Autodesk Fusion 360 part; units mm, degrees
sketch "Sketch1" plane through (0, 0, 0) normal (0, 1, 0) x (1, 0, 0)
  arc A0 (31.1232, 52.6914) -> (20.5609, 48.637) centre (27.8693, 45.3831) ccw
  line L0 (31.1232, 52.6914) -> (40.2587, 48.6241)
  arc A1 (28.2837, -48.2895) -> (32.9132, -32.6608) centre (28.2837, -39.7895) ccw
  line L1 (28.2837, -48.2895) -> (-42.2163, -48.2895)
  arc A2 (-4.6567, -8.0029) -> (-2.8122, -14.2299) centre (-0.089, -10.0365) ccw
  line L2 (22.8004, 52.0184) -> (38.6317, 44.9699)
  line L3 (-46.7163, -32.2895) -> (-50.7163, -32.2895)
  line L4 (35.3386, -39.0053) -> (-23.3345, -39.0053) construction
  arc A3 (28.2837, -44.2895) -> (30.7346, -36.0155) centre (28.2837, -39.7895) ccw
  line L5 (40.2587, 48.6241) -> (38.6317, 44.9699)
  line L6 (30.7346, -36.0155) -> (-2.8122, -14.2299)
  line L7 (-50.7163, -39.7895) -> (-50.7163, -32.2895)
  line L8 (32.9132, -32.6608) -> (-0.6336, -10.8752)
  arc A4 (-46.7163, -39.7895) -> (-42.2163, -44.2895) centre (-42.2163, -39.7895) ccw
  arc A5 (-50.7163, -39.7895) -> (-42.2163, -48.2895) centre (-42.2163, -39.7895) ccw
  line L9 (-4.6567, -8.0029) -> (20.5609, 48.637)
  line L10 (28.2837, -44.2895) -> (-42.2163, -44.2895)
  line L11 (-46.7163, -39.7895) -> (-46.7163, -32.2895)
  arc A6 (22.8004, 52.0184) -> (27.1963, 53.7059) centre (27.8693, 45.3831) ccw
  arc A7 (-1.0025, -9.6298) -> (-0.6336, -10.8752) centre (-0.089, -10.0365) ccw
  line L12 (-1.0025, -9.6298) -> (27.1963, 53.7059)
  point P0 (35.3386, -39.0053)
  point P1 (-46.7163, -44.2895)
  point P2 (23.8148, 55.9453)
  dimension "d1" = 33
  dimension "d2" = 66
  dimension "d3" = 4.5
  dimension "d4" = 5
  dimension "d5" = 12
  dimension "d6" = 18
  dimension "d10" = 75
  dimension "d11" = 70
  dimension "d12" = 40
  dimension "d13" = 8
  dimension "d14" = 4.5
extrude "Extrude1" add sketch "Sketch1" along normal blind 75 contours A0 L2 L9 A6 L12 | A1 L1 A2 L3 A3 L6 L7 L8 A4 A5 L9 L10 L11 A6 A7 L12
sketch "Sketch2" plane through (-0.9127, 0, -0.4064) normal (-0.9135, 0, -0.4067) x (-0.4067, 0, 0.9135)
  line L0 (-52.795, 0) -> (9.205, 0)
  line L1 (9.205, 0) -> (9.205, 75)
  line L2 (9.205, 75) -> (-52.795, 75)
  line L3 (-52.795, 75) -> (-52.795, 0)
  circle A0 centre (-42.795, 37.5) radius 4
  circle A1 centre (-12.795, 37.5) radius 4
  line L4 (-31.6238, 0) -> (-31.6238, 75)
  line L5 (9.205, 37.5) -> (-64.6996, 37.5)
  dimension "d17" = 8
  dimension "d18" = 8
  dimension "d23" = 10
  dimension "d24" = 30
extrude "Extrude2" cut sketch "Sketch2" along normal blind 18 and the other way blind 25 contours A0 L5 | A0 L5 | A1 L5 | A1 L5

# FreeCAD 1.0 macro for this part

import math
import FreeCAD as App
import Part
import Sketcher
from FreeCAD import Vector
Q = App.Units.Quantity

doc = App.newDocument("Part")
body = doc.addObject("PartDesign::Body", "Body")

sketch1 = doc.addObject("Sketcher::SketchObject", "Sketch")
body.addObject(sketch1)
sketch1.AttachmentSupport = (doc.XZ_Plane, [""])
sketch1.MapMode = "FlatFace"
sketch1.addGeometry(Part.LineSegment(Vector(25.8, -50.7, 0), Vector(23.2, -51.9, 0)), False)
sketch1.addGeometry(Part.ArcOfCircle(Part.Circle(Vector(27.9, -45.4, 0), Vector(0, 0, 1), 8), math.radians(-156), math.radians(-126)), False)
sketch1.addGeometry(Part.LineSegment(Vector(20.6, -48.6, 0), Vector(-4.7, 8, 0)), False)
sketch1.addGeometry(Part.ArcOfCircle(Part.Circle(Vector(-0.1, 10, 0), Vector(0, 0, 1), 5), math.radians(123), math.radians(204)), False)
sketch1.addGeometry(Part.LineSegment(Vector(-2.8, 14.2, 0), Vector(30.7, 36, 0)), False)
sketch1.addGeometry(Part.ArcOfCircle(Part.Circle(Vector(28.3, 39.8, 0), Vector(0, 0, 1), 4.5), math.radians(-57), math.radians(90)), False)
sketch1.addGeometry(Part.LineSegment(Vector(28.3, 44.3, 0), Vector(-42.2, 44.3, 0)), False)
sketch1.addGeometry(Part.ArcOfCircle(Part.Circle(Vector(-42.2, 39.8, 0), Vector(0, 0, 1), 4.5), math.radians(90), math.radians(180)), False)
sketch1.addGeometry(Part.LineSegment(Vector(-46.7, 39.8, 0), Vector(-46.7, 32.3, 0)), False)
sketch1.addGeometry(Part.LineSegment(Vector(-46.7, 32.3, 0), Vector(-50.7, 32.3, 0)), False)
sketch1.addGeometry(Part.LineSegment(Vector(-50.7, 32.3, 0), Vector(-50.7, 39.8, 0)), False)
sketch1.addGeometry(Part.ArcOfCircle(Part.Circle(Vector(-42.2, 39.8, 0), Vector(0, 0, 1), 8.5), math.radians(90), math.radians(180)), False)
sketch1.addGeometry(Part.LineSegment(Vector(-42.2, 48.3, 0), Vector(28.3, 48.3, 0)), False)
sketch1.addGeometry(Part.ArcOfCircle(Part.Circle(Vector(28.3, 39.8, 0), Vector(0, 0, 1), 8.5), math.radians(-57), math.radians(90)), False)
sketch1.addGeometry(Part.LineSegment(Vector(32.9, 32.7, 0), Vector(-0.6, 10.9, 0)), False)
sketch1.addGeometry(Part.ArcOfCircle(Part.Circle(Vector(-0.1, 10, 0), Vector(0, 0, 1), 1), math.radians(123), math.radians(204)), False)
sketch1.addGeometry(Part.LineSegment(Vector(-1, 9.6, 0), Vector(25.8, -50.7, 0)), False)
sketch1.addConstraint(Sketcher.Constraint("Coincident", 0, 2, 1, 2))
sketch1.addConstraint(Sketcher.Constraint("Tangent", 1, 1, 2, 1))
sketch1.addConstraint(Sketcher.Constraint("Tangent", 2, 2, 3, 2))
sketch1.addConstraint(Sketcher.Constraint("Tangent", 3, 1, 4, 1))
sketch1.addConstraint(Sketcher.Constraint("Tangent", 4, 2, 5, 1))
sketch1.addConstraint(Sketcher.Constraint("Tangent", 5, 2, 6, 1))
sketch1.addConstraint(Sketcher.Constraint("Tangent", 6, 2, 7, 1))
sketch1.addConstraint(Sketcher.Constraint("Tangent", 7, 2, 8, 1))
sketch1.addConstraint(Sketcher.Constraint("Coincident", 8, 2, 9, 1))
sketch1.addConstraint(Sketcher.Constraint("Coincident", 9, 2, 10, 1))
sketch1.addConstraint(Sketcher.Constraint("Tangent", 10, 2, 11, 2))
sketch1.addConstraint(Sketcher.Constraint("Tangent", 11, 1, 12, 1))
sketch1.addConstraint(Sketcher.Constraint("Tangent", 12, 2, 13, 2))
sketch1.addConstraint(Sketcher.Constraint("Tangent", 13, 1, 14, 1))
sketch1.addConstraint(Sketcher.Constraint("Tangent", 14, 2, 15, 1))
sketch1.addConstraint(Sketcher.Constraint("Tangent", 15, 2, 16, 1))
sketch1.addConstraint(Sketcher.Constraint("Coincident", 16, 2, 0, 1))
sketch1.addConstraint(Sketcher.Constraint("Horizontal", 6))
sketch1.addConstraint(Sketcher.Constraint("Vertical", 8))
sketch1.addConstraint(Sketcher.Constraint("Horizontal", 9))
sketch1.addConstraint(Sketcher.Constraint("Vertical", 10))
sketch1.addConstraint(Sketcher.Constraint("Horizontal", 12))
sketch1.addConstraint(Sketcher.Constraint("Coincident", 11, 3, 7, 3))
sketch1.addConstraint(Sketcher.Constraint("Coincident", 13, 3, 5, 3))
sketch1.addConstraint(Sketcher.Constraint("Coincident", 15, 3, 3, 3))
sketch1.addConstraint(Sketcher.Constraint("Equal", 5, 7))
sketch1.addConstraint(Sketcher.Constraint("Perpendicular", 0, 2))
sketch1.addConstraint(Sketcher.Constraint("Parallel", 4, 14))
sketch1.addConstraint(Sketcher.Constraint("Parallel", 2, 16))
sketch1.addConstraint(Sketcher.Constraint("Radius", 1, 8.0))
sketch1.addConstraint(Sketcher.Constraint("Radius", 3, 5.0))
sketch1.addConstraint(Sketcher.Constraint("Radius", 5, 4.5))
sketch1.addConstraint(Sketcher.Constraint("Angle", 4, Q("33 deg")))
sketch1.addConstraint(Sketcher.Constraint("Angle", 16, Q("-66 deg")))
sketch1.addConstraint(Sketcher.Constraint("Distance", 4, 40.0))
sketch1.addConstraint(Sketcher.Constraint("Distance", 16, 66.0))
sketch1.addConstraint(Sketcher.Constraint("Radius", 15, 1.0))
sketch1.addConstraint(Sketcher.Constraint("DistanceY", 8, 2, 6, 2, 12.0))
sketch1.addConstraint(Sketcher.Constraint("Distance", 2, 62.0))
sketch1.addConstraint(Sketcher.Constraint("DistanceX", 6, 2, 6, 1, 70.5))
sketch1.addConstraint(Sketcher.Constraint("DistanceY", 1, 3, -1, 1, 45.383))
sketch1.addConstraint(Sketcher.Constraint("DistanceX", 3, 3, -1, 1, 0.089))
pad1 = doc.addObject("PartDesign::Pad", "Pad")
body.addObject(pad1)
pad1.Profile = sketch1
pad1.Length = 75
pad1.Reversed = True

sketch2 = doc.addObject("Sketcher::SketchObject", "Sketch001")
body.addObject(sketch2)
sketch2.Placement = App.Placement(Vector(-0.9127, 0, -0.4064), App.Rotation(Vector(-0.406736643, 0, 0.913545458), Vector(0, 1.000000001, 0), Vector(-0.913545458, 0, -0.406736643), "ZXY"))
sketch2.addGeometry(Part.Circle(Vector(-42.8, 37.5, 0), Vector(0, 0, 1), 4), False)
sketch2.addGeometry(Part.Circle(Vector(-12.8, 37.5, 0), Vector(0, 0, 1), 4), False)
sketch2.addConstraint(Sketcher.Constraint("Equal", 0, 1))
sketch2.addConstraint(Sketcher.Constraint("Horizontal", 0, 3, 1, 3))
sketch2.addConstraint(Sketcher.Constraint("Diameter", 0, 8.0))
sketch2.addConstraint(Sketcher.Constraint("DistanceX", 0, 3, 1, 3, 30.0))
sketch2.addConstraint(Sketcher.Constraint("DistanceY", -1, 1, 0, 3, 37.5))
sketch2.addConstraint(Sketcher.Constraint("DistanceX", 0, 3, -1, 1, 42.795))
pocket1 = doc.addObject("PartDesign::Pocket", "Pocket")
body.addObject(pocket1)
pocket1.Profile = sketch2
pocket1.Type = "ThroughAll"
pocket1.Midplane = True

doc.recompute()
